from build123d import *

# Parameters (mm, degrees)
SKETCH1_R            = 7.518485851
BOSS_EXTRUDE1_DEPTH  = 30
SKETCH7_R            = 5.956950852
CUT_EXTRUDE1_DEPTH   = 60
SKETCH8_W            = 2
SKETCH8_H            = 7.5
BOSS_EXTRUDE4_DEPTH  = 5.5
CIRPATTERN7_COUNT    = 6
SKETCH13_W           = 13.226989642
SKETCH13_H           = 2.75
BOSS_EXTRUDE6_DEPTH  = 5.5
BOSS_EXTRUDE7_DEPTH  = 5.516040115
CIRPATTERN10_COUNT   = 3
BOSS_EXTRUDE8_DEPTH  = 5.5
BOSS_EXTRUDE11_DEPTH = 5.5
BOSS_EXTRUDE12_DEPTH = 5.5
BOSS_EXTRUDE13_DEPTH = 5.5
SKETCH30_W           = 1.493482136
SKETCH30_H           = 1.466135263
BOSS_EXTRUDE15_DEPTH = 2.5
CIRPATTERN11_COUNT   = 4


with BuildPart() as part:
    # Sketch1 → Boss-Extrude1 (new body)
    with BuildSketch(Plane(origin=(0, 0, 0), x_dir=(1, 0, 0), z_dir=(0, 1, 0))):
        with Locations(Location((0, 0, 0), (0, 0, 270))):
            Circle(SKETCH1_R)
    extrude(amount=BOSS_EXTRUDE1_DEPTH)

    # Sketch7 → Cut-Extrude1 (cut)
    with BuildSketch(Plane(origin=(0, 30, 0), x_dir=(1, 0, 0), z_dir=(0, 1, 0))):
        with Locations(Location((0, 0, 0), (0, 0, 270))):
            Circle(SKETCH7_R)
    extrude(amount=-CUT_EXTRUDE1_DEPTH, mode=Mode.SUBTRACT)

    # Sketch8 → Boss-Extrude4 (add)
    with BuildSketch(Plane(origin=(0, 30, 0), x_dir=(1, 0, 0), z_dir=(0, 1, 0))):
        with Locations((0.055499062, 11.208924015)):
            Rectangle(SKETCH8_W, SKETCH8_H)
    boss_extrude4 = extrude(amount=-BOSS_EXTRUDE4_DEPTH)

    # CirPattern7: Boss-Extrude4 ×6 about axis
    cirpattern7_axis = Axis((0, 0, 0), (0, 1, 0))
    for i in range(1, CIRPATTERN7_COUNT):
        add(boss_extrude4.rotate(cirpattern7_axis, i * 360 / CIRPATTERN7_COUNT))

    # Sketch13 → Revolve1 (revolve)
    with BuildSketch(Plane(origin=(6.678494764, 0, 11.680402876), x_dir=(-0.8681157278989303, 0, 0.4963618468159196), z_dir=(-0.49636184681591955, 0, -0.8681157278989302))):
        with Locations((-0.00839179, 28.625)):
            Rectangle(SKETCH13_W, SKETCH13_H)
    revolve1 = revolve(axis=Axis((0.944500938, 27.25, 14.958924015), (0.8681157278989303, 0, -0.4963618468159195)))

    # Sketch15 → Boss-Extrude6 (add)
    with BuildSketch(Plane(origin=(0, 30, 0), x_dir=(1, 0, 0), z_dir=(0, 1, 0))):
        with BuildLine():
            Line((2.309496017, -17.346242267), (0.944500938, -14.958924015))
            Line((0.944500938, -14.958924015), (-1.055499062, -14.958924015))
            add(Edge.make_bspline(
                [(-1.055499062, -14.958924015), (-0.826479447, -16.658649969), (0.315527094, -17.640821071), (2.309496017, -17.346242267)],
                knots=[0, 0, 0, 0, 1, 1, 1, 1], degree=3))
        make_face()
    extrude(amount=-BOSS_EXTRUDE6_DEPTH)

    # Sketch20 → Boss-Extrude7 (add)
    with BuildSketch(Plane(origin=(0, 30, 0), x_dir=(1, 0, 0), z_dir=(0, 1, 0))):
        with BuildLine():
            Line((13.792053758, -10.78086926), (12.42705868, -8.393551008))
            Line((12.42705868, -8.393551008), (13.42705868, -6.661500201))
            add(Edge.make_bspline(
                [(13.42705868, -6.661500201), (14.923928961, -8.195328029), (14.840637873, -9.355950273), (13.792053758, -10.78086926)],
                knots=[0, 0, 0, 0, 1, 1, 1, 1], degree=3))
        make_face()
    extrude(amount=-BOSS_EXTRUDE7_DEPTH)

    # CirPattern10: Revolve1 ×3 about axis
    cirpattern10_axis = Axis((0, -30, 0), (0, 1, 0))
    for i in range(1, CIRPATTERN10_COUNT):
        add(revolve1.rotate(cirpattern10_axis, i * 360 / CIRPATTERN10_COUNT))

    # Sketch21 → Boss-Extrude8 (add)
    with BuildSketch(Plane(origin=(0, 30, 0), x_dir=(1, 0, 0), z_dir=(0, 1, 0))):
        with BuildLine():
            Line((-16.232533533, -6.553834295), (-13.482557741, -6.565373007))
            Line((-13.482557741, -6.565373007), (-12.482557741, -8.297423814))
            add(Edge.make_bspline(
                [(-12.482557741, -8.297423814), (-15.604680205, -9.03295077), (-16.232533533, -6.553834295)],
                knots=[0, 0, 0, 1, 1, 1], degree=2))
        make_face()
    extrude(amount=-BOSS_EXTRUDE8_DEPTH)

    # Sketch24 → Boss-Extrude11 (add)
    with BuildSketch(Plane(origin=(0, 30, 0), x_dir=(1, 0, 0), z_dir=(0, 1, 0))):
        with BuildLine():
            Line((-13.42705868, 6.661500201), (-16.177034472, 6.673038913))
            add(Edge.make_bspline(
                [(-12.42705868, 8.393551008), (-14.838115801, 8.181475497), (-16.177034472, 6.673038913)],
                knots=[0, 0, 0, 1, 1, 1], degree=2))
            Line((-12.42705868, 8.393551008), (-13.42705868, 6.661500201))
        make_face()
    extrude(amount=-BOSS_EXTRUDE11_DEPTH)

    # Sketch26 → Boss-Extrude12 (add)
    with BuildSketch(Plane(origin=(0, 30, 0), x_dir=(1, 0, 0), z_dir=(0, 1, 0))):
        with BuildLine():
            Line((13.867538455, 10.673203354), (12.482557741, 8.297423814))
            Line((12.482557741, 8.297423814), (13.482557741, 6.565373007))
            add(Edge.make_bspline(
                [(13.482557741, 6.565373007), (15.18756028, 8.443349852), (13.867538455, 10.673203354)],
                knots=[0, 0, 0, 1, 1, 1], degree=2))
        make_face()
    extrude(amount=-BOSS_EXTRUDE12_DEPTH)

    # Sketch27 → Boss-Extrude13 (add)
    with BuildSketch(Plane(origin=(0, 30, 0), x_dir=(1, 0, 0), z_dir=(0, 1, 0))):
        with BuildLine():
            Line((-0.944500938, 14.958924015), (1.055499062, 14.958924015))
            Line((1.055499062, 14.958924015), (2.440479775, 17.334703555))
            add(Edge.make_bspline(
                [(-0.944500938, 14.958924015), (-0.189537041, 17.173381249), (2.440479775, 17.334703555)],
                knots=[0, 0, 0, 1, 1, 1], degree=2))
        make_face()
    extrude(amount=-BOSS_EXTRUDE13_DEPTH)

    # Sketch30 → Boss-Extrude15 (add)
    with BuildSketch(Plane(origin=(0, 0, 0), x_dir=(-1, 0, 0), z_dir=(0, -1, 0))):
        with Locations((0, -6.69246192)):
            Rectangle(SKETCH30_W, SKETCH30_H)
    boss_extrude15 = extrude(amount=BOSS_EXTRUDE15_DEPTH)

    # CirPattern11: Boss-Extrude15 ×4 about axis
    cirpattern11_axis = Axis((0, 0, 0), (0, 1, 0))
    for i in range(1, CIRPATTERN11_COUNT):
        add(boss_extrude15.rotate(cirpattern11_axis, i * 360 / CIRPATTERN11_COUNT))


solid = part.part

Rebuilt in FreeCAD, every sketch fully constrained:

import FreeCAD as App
import Part
import Sketcher
Q = App.Units.Quantity

doc = App.newDocument("Part")
body = doc.addObject("PartDesign::Body", "Body")

sketch1 = doc.addObject("Sketcher::SketchObject", "Sketch")
body.addObject(sketch1)
sketch1.AttachmentSupport = (doc.XZ_Plane, [""])
sketch1.MapMode = "FlatFace"
sketch1.addGeometry(Part.Circle(App.Vector(0, 0, 0), App.Vector(0, 0, 1), 8), False)
sketch1.addConstraint(Sketcher.Constraint("Coincident", 0, 3, -1, 1))
sketch1.addConstraint(Sketcher.Constraint("Diameter", 0, 15.036972))
pad1 = doc.addObject("PartDesign::Pad", "Pad")
body.addObject(pad1)
pad1.Profile = sketch1
pad1.Length = 30
pad1.Reversed = True

sketch2 = doc.addObject("Sketcher::SketchObject", "Sketch001")
body.addObject(sketch2)
sketch2.AttachmentSupport = (doc.XZ_Plane, [""])
sketch2.MapMode = "FlatFace"
sketch2.AttachmentOffset = App.Placement(App.Vector(0, 0, -30), App.Rotation())
sketch2.addGeometry(Part.Circle(App.Vector(0, 0, 0), App.Vector(0, 0, 1), 6), False)
sketch2.addConstraint(Sketcher.Constraint("Coincident", 0, 3, -1, 1))
sketch2.addConstraint(Sketcher.Constraint("Diameter", 0, 11.913902))
pocket1 = doc.addObject("PartDesign::Pocket", "Pocket")
body.addObject(pocket1)
pocket1.Profile = sketch2
pocket1.Length = 60
pocket1.Reversed = True

sketch3 = doc.addObject("Sketcher::SketchObject", "Sketch002")
body.addObject(sketch3)
sketch3.AttachmentSupport = (doc.XZ_Plane, [""])
sketch3.MapMode = "FlatFace"
sketch3.AttachmentOffset = App.Placement(App.Vector(0, 0, -30), App.Rotation())
sketch3.addGeometry(Part.LineSegment(App.Vector(-0.9, -15, 0), App.Vector(-0.9, -7.5, 0)), False)
sketch3.addGeometry(Part.LineSegment(App.Vector(-0.9, -7.5, 0), App.Vector(1.1, -7.5, 0)), False)
sketch3.addGeometry(Part.LineSegment(App.Vector(1.1, -7.5, 0), App.Vector(1.1, -15, 0)), False)
sketch3.addGeometry(Part.LineSegment(App.Vector(1.1, -15, 0), App.Vector(-0.9, -15, 0)), False)
sketch3.addConstraint(Sketcher.Constraint("Coincident", 0, 2, 1, 1))
sketch3.addConstraint(Sketcher.Constraint("Coincident", 1, 2, 2, 1))
sketch3.addConstraint(Sketcher.Constraint("Coincident", 2, 2, 3, 1))
sketch3.addConstraint(Sketcher.Constraint("Coincident", 3, 2, 0, 1))
sketch3.addConstraint(Sketcher.Constraint("Vertical", 0))
sketch3.addConstraint(Sketcher.Constraint("Horizontal", 1))
sketch3.addConstraint(Sketcher.Constraint("Vertical", 2))
sketch3.addConstraint(Sketcher.Constraint("Horizontal", 3))
sketch3.addConstraint(Sketcher.Constraint("DistanceX", 1, 1, 1, 2, 2.0))
sketch3.addConstraint(Sketcher.Constraint("DistanceY", 0, 1, 0, 2, 7.5))
sketch3.addConstraint(Sketcher.Constraint("DistanceX", 0, 2, -1, 1, 0.944501))
sketch3.addConstraint(Sketcher.Constraint("DistanceY", 0, 2, -1, 1, 7.458924))
pad2 = doc.addObject("PartDesign::Pad", "Pad001")
body.addObject(pad2)
pad2.Profile = sketch3
pad2.Length = 5.5
doc.recompute()

polarpattern = doc.addObject("PartDesign::PolarPattern", "PolarPattern")
body.addObject(polarpattern)
polarpattern.Originals = [pad2]
polarpattern.Axis = (doc.Y_Axis, [""])
polarpattern.Angle = 360
polarpattern.Occurrences = 6
body.Tip = polarpattern

sketch4 = doc.addObject("Sketcher::SketchObject", "Sketch003")
body.addObject(sketch4)
sketch4.Placement = App.Placement(App.Vector(6.678495, 0, 11.680403), App.Rotation(App.Vector(-0.868115728, 0, 0.496361847), App.Vector(0, 1, 0), App.Vector(-0.496361847, 0, -0.868115728), "ZXY"))
sketch4.addGeometry(Part.LineSegment(App.Vector(-6.6, 30, 0), App.Vector(-6.6, 27.3, 0)), False)
sketch4.addGeometry(Part.LineSegment(App.Vector(-6.6, 27.3, 0), App.Vector(6.6, 27.3, 0)), False)
sketch4.addGeometry(Part.LineSegment(App.Vector(6.6, 27.3, 0), App.Vector(6.6, 30, 0)), False)
sketch4.addGeometry(Part.LineSegment(App.Vector(6.6, 30, 0), App.Vector(-6.6, 30, 0)), False)
sketch4.addGeometry(Part.LineSegment(App.Vector(6.6, 27.3, 0), App.Vector(-6.6, 27.3, 0)), True)
sketch4.addConstraint(Sketcher.Constraint("Coincident", 0, 2, 1, 1))
sketch4.addConstraint(Sketcher.Constraint("Coincident", 1, 2, 2, 1))
sketch4.addConstraint(Sketcher.Constraint("Coincident", 2, 2, 3, 1))
sketch4.addConstraint(Sketcher.Constraint("Coincident", 3, 2, 0, 1))
sketch4.addConstraint(Sketcher.Constraint("Vertical", 0))
sketch4.addConstraint(Sketcher.Constraint("Horizontal", 1))
sketch4.addConstraint(Sketcher.Constraint("Vertical", 2))
sketch4.addConstraint(Sketcher.Constraint("Horizontal", 3))
sketch4.addConstraint(Sketcher.Constraint("Horizontal", 4))
sketch4.addConstraint(Sketcher.Constraint("Coincident", 4, 1, 1, 2))
sketch4.addConstraint(Sketcher.Constraint("Vertical", 3, 2, 4, 2))
sketch4.addConstraint(Sketcher.Constraint("DistanceY", -1, 1, 2, 2, 30.0))
sketch4.addConstraint(Sketcher.Constraint("DistanceY", 0, 2, 0, 1, 2.75))
sketch4.addConstraint(Sketcher.Constraint("DistanceX", 1, 1, 1, 2, 13.22699))
sketch4.addConstraint(Sketcher.Constraint("DistanceX", 0, 2, -1, 1, 6.621887))
revolution = doc.addObject("PartDesign::Revolution", "Revolution")
body.addObject(revolution)
revolution.Profile = sketch4
revolution.ReferenceAxis = (sketch4, ["Axis0"])
revolution.Angle = 360

sketch5 = doc.addObject("Sketcher::SketchObject", "Sketch004")
body.addObject(sketch5)
sketch5.AttachmentSupport = (doc.XZ_Plane, [""])
sketch5.MapMode = "FlatFace"
sketch5.AttachmentOffset = App.Placement(App.Vector(0, 0, -30), App.Rotation())
sketch5.addGeometry(Part.LineSegment(App.Vector(2.309496, 17.346242, 0), App.Vector(0.944501, 14.958924, 0)), False)
sketch5.addGeometry(Part.LineSegment(App.Vector(0.944501, 14.958924, 0), App.Vector(-1.055499, 14.958924, 0)), False)
sketch5.addGeometry(Part.BSplineCurve([App.Vector(-1.055499, 14.958924, 0), App.Vector(-0.826479, 16.65865, 0), App.Vector(0.315527, 17.640821, 0), App.Vector(2.309496, 17.346242, 0)], [4, 4], [0, 1], False, 3, [1, 1, 1, 1], False), False)
sketch5.addConstraint(Sketcher.Constraint("Block", 2))
sketch5.addConstraint(Sketcher.Constraint("Coincident", 0, 2, 1, 1))
sketch5.addConstraint(Sketcher.Constraint("Coincident", 1, 2, 2, 1))
sketch5.addConstraint(Sketcher.Constraint("Coincident", 2, 2, 0, 1))
sketch5.addConstraint(Sketcher.Constraint("Horizontal", 1))
sketch5.addConstraint(Sketcher.Constraint("DistanceX", 1, 2, 1, 1, 2.0))
pad3 = doc.addObject("PartDesign::Pad", "Pad002")
body.addObject(pad3)
pad3.Profile = sketch5
pad3.Length = 5.5

sketch6 = doc.addObject("Sketcher::SketchObject", "Sketch005")
body.addObject(sketch6)
sketch6.AttachmentSupport = (doc.XZ_Plane, [""])
sketch6.MapMode = "FlatFace"
sketch6.AttachmentOffset = App.Placement(App.Vector(0, 0, -30), App.Rotation())
sketch6.addGeometry(Part.LineSegment(App.Vector(12.427059, 8.393551, 0), App.Vector(13.792054, 10.780869, 0)), False)
sketch6.addGeometry(Part.BSplineCurve([App.Vector(13.427059, 6.6615, 0), App.Vector(14.923929, 8.195328, 0), App.Vector(14.840638, 9.35595, 0), App.Vector(13.792054, 10.780869, 0)], [4, 4], [0, 1], False, 3, [1, 1, 1, 1], False), False)
sketch6.addGeometry(Part.LineSegment(App.Vector(13.427059, 6.6615, 0), App.Vector(12.427059, 8.393551, 0)), False)
sketch6.addConstraint(Sketcher.Constraint("Block", 1))
sketch6.addConstraint(Sketcher.Constraint("Coincident", 0, 2, 1, 2))
sketch6.addConstraint(Sketcher.Constraint("Coincident", 1, 1, 2, 1))
sketch6.addConstraint(Sketcher.Constraint("Coincident", 2, 2, 0, 1))
sketch6.addConstraint(Sketcher.Constraint("Angle", 2, Q("120 deg")))
sketch6.addConstraint(Sketcher.Constraint("Distance", 2, 2.0))
pad4 = doc.addObject("PartDesign::Pad", "Pad003")
body.addObject(pad4)
pad4.Profile = sketch6
pad4.Length = 5.51604
doc.recompute()

polarpattern2 = doc.addObject("PartDesign::PolarPattern", "PolarPattern001")
body.addObject(polarpattern2)
polarpattern2.Originals = [revolution]
polarpattern2.Axis = (doc.Y_Axis, [""])
polarpattern2.Angle = 360
polarpattern2.Occurrences = 3
body.Tip = polarpattern2

sketch7 = doc.addObject("Sketcher::SketchObject", "Sketch006")
body.addObject(sketch7)
sketch7.AttachmentSupport = (doc.XZ_Plane, [""])
sketch7.MapMode = "FlatFace"
sketch7.AttachmentOffset = App.Placement(App.Vector(0, 0, -30), App.Rotation())
sketch7.addGeometry(Part.LineSegment(App.Vector(-13.482558, 6.565373, 0), App.Vector(-16.232534, 6.553834, 0)), False)
sketch7.addGeometry(Part.BSplineCurve([App.Vector(-12.482558, 8.297424, 0), App.Vector(-15.60468, 9.032951, 0), App.Vector(-16.232534, 6.553834, 0)], [3, 3], [0, 1], False, 2, [1, 1, 1], False), False)
sketch7.addGeometry(Part.LineSegment(App.Vector(-12.482558, 8.297424, 0), App.Vector(-13.482558, 6.565373, 0)), False)
sketch7.addConstraint(Sketcher.Constraint("Block", 1))
sketch7.addConstraint(Sketcher.Constraint("Coincident", 0, 2, 1, 2))
sketch7.addConstraint(Sketcher.Constraint("Coincident", 1, 1, 2, 1))
sketch7.addConstraint(Sketcher.Constraint("Coincident", 2, 2, 0, 1))
sketch7.addConstraint(Sketcher.Constraint("Angle", 2, Q("-120 deg")))
sketch7.addConstraint(Sketcher.Constraint("Distance", 2, 2.0))
pad5 = doc.addObject("PartDesign::Pad", "Pad004")
body.addObject(pad5)
pad5.Profile = sketch7
pad5.Length = 5.5

sketch8 = doc.addObject("Sketcher::SketchObject", "Sketch007")
body.addObject(sketch8)
sketch8.AttachmentSupport = (doc.XZ_Plane, [""])
sketch8.MapMode = "FlatFace"
sketch8.AttachmentOffset = App.Placement(App.Vector(0, 0, -30), App.Rotation())
sketch8.addGeometry(Part.LineSegment(App.Vector(-16.177034, -6.673039, 0), App.Vector(-13.427059, -6.6615, 0)), False)
sketch8.addGeometry(Part.LineSegment(App.Vector(-13.427059, -6.6615, 0), App.Vector(-12.427059, -8.393551, 0)), False)
sketch8.addGeometry(Part.BSplineCurve([App.Vector(-12.427059, -8.393551, 0), App.Vector(-14.838116, -8.181475, 0), App.Vector(-16.177034, -6.673039, 0)], [3, 3], [0, 1], False, 2, [1, 1, 1], False), False)
sketch8.addConstraint(Sketcher.Constraint("Block", 2))
sketch8.addConstraint(Sketcher.Constraint("Coincident", 0, 2, 1, 1))
sketch8.addConstraint(Sketcher.Constraint("Coincident", 1, 2, 2, 1))
sketch8.addConstraint(Sketcher.Constraint("Coincident", 2, 2, 0, 1))
sketch8.addConstraint(Sketcher.Constraint("Angle", 1, Q("-60 deg")))
sketch8.addConstraint(Sketcher.Constraint("Distance", 1, 2.0))
pad6 = doc.addObject("PartDesign::Pad", "Pad005")
body.addObject(pad6)
pad6.Profile = sketch8
pad6.Length = 5.5

sketch9 = doc.addObject("Sketcher::SketchObject", "Sketch008")
body.addObject(sketch9)
sketch9.AttachmentSupport = (doc.XZ_Plane, [""])
sketch9.MapMode = "FlatFace"
sketch9.AttachmentOffset = App.Placement(App.Vector(0, 0, -30), App.Rotation())
sketch9.addGeometry(Part.LineSegment(App.Vector(13.867538, -10.673203, 0), App.Vector(12.482558, -8.297424, 0)), False)
sketch9.addGeometry(Part.LineSegment(App.Vector(12.482558, -8.297424, 0), App.Vector(13.482558, -6.565373, 0)), False)
sketch9.addGeometry(Part.BSplineCurve([App.Vector(13.482558, -6.565373, 0), App.Vector(15.18756, -8.44335, 0), App.Vector(13.867538, -10.673203, 0)], [3, 3], [0, 1], False, 2, [1, 1, 1], False), False)
sketch9.addConstraint(Sketcher.Constraint("Block", 2))
sketch9.addConstraint(Sketcher.Constraint("Coincident", 0, 2, 1, 1))
sketch9.addConstraint(Sketcher.Constraint("Coincident", 1, 2, 2, 1))
sketch9.addConstraint(Sketcher.Constraint("Coincident", 2, 2, 0, 1))
sketch9.addConstraint(Sketcher.Constraint("Angle", 1, Q("60 deg")))
sketch9.addConstraint(Sketcher.Constraint("Distance", 1, 2.0))
pad7 = doc.addObject("PartDesign::Pad", "Pad006")
body.addObject(pad7)
pad7.Profile = sketch9
pad7.Length = 5.5

sketch10 = doc.addObject("Sketcher::SketchObject", "Sketch009")
body.addObject(sketch10)
sketch10.AttachmentSupport = (doc.XZ_Plane, [""])
sketch10.MapMode = "FlatFace"
sketch10.AttachmentOffset = App.Placement(App.Vector(0, 0, -30), App.Rotation())
sketch10.addGeometry(Part.LineSegment(App.Vector(-0.944501, -14.958924, 0), App.Vector(1.055499, -14.958924, 0)), False)
sketch10.addGeometry(Part.LineSegment(App.Vector(1.055499, -14.958924, 0), App.Vector(2.44048, -17.334704, 0)), False)
sketch10.addGeometry(Part.BSplineCurve([App.Vector(-0.944501, -14.958924, 0), App.Vector(-0.189537, -17.173381, 0), App.Vector(2.44048, -17.334704, 0)], [3, 3], [0, 1], False, 2, [1, 1, 1], False), False)
sketch10.addConstraint(Sketcher.Constraint("Block", 2))
sketch10.addConstraint(Sketcher.Constraint("Coincident", 0, 2, 1, 1))
sketch10.addConstraint(Sketcher.Constraint("Coincident", 1, 2, 2, 2))
sketch10.addConstraint(Sketcher.Constraint("Coincident", 2, 1, 0, 1))
sketch10.addConstraint(Sketcher.Constraint("Horizontal", 0))
sketch10.addConstraint(Sketcher.Constraint("DistanceX", 0, 1, 0, 2, 2.0))
pad8 = doc.addObject("PartDesign::Pad", "Pad007")
body.addObject(pad8)
pad8.Profile = sketch10
pad8.Length = 5.5

sketch11 = doc.addObject("Sketcher::SketchObject", "Sketch010")
body.addObject(sketch11)
sketch11.AttachmentSupport = (doc.XZ_Plane, [""])
sketch11.MapMode = "FlatFace"
sketch11.addGeometry(Part.LineSegment(App.Vector(0.7, 6, 0), App.Vector(0.7, 7.4, 0)), False)
sketch11.addGeometry(Part.LineSegment(App.Vector(0.7, 7.4, 0), App.Vector(-0.7, 7.4, 0)), False)
sketch11.addGeometry(Part.LineSegment(App.Vector(-0.7, 7.4, 0), App.Vector(-0.7, 6, 0)), False)
sketch11.addGeometry(Part.LineSegment(App.Vector(-0.7, 6, 0), App.Vector(0.7, 6, 0)), False)
sketch11.addConstraint(Sketcher.Constraint("Coincident", 0, 2, 1, 1))
sketch11.addConstraint(Sketcher.Constraint("Coincident", 1, 2, 2, 1))
sketch11.addConstraint(Sketcher.Constraint("Coincident", 2, 2, 3, 1))
sketch11.addConstraint(Sketcher.Constraint("Coincident", 3, 2, 0, 1))
sketch11.addConstraint(Sketcher.Constraint("Vertical", 0))
sketch11.addConstraint(Sketcher.Constraint("Horizontal", 1))
sketch11.addConstraint(Sketcher.Constraint("Vertical", 2))
sketch11.addConstraint(Sketcher.Constraint("Horizontal", 3))
sketch11.addConstraint(Sketcher.Constraint("DistanceX", 1, 2, 1, 1, 1.493482))
sketch11.addConstraint(Sketcher.Constraint("DistanceY", 0, 1, 0, 2, 1.466135))
sketch11.addConstraint(Sketcher.Constraint("DistanceX", -1, 1, 0, 2, 0.746741))
sketch11.addConstraint(Sketcher.Constraint("DistanceY", -1, 1, 0, 2, 7.42553))
pad9 = doc.addObject("PartDesign::Pad", "Pad008")
body.addObject(pad9)
pad9.Profile = sketch11
pad9.Length = 2.5
doc.recompute()

polarpattern3 = doc.addObject("PartDesign::PolarPattern", "PolarPattern002")
body.addObject(polarpattern3)
polarpattern3.Originals = [pad9]
polarpattern3.Axis = (doc.Y_Axis, [""])
polarpattern3.Angle = 360
polarpattern3.Occurrences = 4
body.Tip = polarpattern3

doc.recompute()
